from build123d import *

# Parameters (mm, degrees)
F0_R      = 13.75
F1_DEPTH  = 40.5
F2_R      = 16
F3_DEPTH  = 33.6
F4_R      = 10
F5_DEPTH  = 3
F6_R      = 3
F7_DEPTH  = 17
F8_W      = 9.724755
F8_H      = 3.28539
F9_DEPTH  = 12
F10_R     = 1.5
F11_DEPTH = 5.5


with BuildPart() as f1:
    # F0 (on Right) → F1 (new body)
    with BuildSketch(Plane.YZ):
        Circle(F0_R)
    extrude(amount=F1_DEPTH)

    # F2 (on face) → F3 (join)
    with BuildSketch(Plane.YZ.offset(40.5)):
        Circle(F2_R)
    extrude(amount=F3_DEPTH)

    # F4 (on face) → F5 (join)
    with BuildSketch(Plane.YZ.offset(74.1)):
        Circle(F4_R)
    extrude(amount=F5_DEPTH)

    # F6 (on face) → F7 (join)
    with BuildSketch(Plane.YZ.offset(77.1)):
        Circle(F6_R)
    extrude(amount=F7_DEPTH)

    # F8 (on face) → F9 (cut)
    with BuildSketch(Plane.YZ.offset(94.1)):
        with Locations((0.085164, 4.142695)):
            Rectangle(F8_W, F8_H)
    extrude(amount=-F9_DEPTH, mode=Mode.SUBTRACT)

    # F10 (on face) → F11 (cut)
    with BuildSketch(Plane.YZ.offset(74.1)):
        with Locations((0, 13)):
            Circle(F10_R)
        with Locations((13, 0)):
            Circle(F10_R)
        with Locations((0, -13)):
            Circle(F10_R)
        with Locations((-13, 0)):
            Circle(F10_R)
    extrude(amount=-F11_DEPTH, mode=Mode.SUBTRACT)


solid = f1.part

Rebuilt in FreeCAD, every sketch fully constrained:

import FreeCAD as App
import Part
import Sketcher

V = App.Vector

doc = App.newDocument("Part")
body = doc.addObject("PartDesign::Body", "Body")

sketch1 = body.newObject("Sketcher::SketchObject", "Sketch")
sketch1.AttachmentSupport = (doc.getObject("YZ_Plane"), [""])
sketch1.MapMode = "FlatFace"
sketch1.addGeometry(Part.Circle(V(0, 0, 0), V(0, 0, 1), 13.75), False)
sketch1.addConstraint(Sketcher.Constraint("Coincident", 0, 3, -1, 1))
sketch1.addConstraint(Sketcher.Constraint("Diameter", 0, 27.5))
pad1 = body.newObject("PartDesign::Pad", "Pad")
pad1.Profile = sketch1
pad1.Length = 40.5

sketch2 = body.newObject("Sketcher::SketchObject", "Sketch001")
sketch2.AttachmentSupport = (doc.getObject("YZ_Plane"), [""])
sketch2.MapMode = "FlatFace"
sketch2.AttachmentOffset = App.Placement(V(0, 0, 40.5), App.Rotation())
sketch2.addGeometry(Part.Circle(V(0, 0, 0), V(0, 0, 1), 16), False)
sketch2.addConstraint(Sketcher.Constraint("Coincident", 0, 3, -1, 1))
sketch2.addConstraint(Sketcher.Constraint("Diameter", 0, 32.0))
pad2 = body.newObject("PartDesign::Pad", "Pad001")
pad2.Profile = sketch2
pad2.Length = 33.6

sketch3 = body.newObject("Sketcher::SketchObject", "Sketch002")
sketch3.AttachmentSupport = (doc.getObject("YZ_Plane"), [""])
sketch3.MapMode = "FlatFace"
sketch3.AttachmentOffset = App.Placement(V(0, 0, 74.1), App.Rotation())
sketch3.addGeometry(Part.Circle(V(0, 0, 0), V(0, 0, 1), 10), False)
sketch3.addConstraint(Sketcher.Constraint("Coincident", 0, 3, -1, 1))
sketch3.addConstraint(Sketcher.Constraint("Diameter", 0, 20.0))
pad3 = body.newObject("PartDesign::Pad", "Pad002")
pad3.Profile = sketch3
pad3.Length = 3

sketch4 = body.newObject("Sketcher::SketchObject", "Sketch003")
sketch4.AttachmentSupport = (doc.getObject("YZ_Plane"), [""])
sketch4.MapMode = "FlatFace"
sketch4.AttachmentOffset = App.Placement(V(0, 0, 77.1), App.Rotation())
sketch4.addGeometry(Part.Circle(V(0, 0, 0), V(0, 0, 1), 3), False)
sketch4.addConstraint(Sketcher.Constraint("Coincident", 0, 3, -1, 1))
sketch4.addConstraint(Sketcher.Constraint("Diameter", 0, 6.0))
pad4 = body.newObject("PartDesign::Pad", "Pad003")
pad4.Profile = sketch4
pad4.Length = 17

sketch5 = body.newObject("Sketcher::SketchObject", "Sketch004")
sketch5.AttachmentSupport = (doc.getObject("YZ_Plane"), [""])
sketch5.MapMode = "FlatFace"
sketch5.AttachmentOffset = App.Placement(V(0, 0, 94.1), App.Rotation())
sketch5.addGeometry(Part.LineSegment(V(-4.777214, 5.78539, 0), V(-4.777214, 2.5, 0)), False)
sketch5.addGeometry(Part.LineSegment(V(-4.777214, 2.5, 0), V(4.947541, 2.5, 0)), False)
sketch5.addGeometry(Part.LineSegment(V(4.947541, 2.5, 0), V(4.947541, 5.78539, 0)), False)
sketch5.addGeometry(Part.LineSegment(V(4.947541, 5.78539, 0), V(-4.777214, 5.78539, 0)), False)
sketch5.addConstraint(Sketcher.Constraint("Coincident", 0, 2, 1, 1))
sketch5.addConstraint(Sketcher.Constraint("Coincident", 1, 2, 2, 1))
sketch5.addConstraint(Sketcher.Constraint("Coincident", 2, 2, 3, 1))
sketch5.addConstraint(Sketcher.Constraint("Coincident", 3, 2, 0, 1))
sketch5.addConstraint(Sketcher.Constraint("Vertical", 0))
sketch5.addConstraint(Sketcher.Constraint("Horizontal", 1))
sketch5.addConstraint(Sketcher.Constraint("Vertical", 2))
sketch5.addConstraint(Sketcher.Constraint("Horizontal", 3))
sketch5.addConstraint(Sketcher.Constraint("DistanceY", -1, 1, 0, 2, 2.5))
sketch5.addConstraint(Sketcher.Constraint("DistanceY", 0, 2, 0, 1, 3.28539))
sketch5.addConstraint(Sketcher.Constraint("DistanceX", 1, 1, 1, 2, 9.724755))
sketch5.addConstraint(Sketcher.Constraint("DistanceX", -1, 1, 1, 2, 4.947541))
pocket1 = body.newObject("PartDesign::Pocket", "Pocket")
pocket1.Profile = sketch5
pocket1.Length = 12

sketch6 = body.newObject("Sketcher::SketchObject", "Sketch005")
sketch6.AttachmentSupport = (doc.getObject("YZ_Plane"), [""])
sketch6.MapMode = "FlatFace"
sketch6.AttachmentOffset = App.Placement(V(0, 0, 74.1), App.Rotation())
sketch6.addGeometry(Part.Circle(V(0, 13, 0), V(0, 0, 1), 1.5), False)
sketch6.addGeometry(Part.Circle(V(13, 0, 0), V(0, 0, 1), 1.5), False)
sketch6.addGeometry(Part.Circle(V(0, -13, 0), V(0, 0, 1), 1.5), False)
sketch6.addGeometry(Part.Circle(V(-13, 0, 0), V(0, 0, 1), 1.5), False)
sketch6.addConstraint(Sketcher.Constraint("Equal", 0, 1))
sketch6.addConstraint(Sketcher.Constraint("Equal", 1, 2))
sketch6.addConstraint(Sketcher.Constraint("Equal", 2, 3))
sketch6.addConstraint(Sketcher.Constraint("Symmetric", 0, 3, 2, 3, -1, 1))
sketch6.addConstraint(Sketcher.Constraint("Symmetric", 1, 3, 3, 3, -1, 1))
sketch6.addConstraint(Sketcher.Constraint("PointOnObject", 0, 3, -2))
sketch6.addConstraint(Sketcher.Constraint("PointOnObject", 1, 3, -1))
sketch6.addConstraint(Sketcher.Constraint("Diameter", 0, 3.0))
sketch6.addConstraint(Sketcher.Constraint("DistanceY", -1, 1, 0, 3, 13.0))
sketch6.addConstraint(Sketcher.Constraint("DistanceX", -1, 1, 1, 3, 13.0))
pocket2 = body.newObject("PartDesign::Pocket", "Pocket001")
pocket2.Profile = sketch6
pocket2.Length = 5.5

doc.recompute()
